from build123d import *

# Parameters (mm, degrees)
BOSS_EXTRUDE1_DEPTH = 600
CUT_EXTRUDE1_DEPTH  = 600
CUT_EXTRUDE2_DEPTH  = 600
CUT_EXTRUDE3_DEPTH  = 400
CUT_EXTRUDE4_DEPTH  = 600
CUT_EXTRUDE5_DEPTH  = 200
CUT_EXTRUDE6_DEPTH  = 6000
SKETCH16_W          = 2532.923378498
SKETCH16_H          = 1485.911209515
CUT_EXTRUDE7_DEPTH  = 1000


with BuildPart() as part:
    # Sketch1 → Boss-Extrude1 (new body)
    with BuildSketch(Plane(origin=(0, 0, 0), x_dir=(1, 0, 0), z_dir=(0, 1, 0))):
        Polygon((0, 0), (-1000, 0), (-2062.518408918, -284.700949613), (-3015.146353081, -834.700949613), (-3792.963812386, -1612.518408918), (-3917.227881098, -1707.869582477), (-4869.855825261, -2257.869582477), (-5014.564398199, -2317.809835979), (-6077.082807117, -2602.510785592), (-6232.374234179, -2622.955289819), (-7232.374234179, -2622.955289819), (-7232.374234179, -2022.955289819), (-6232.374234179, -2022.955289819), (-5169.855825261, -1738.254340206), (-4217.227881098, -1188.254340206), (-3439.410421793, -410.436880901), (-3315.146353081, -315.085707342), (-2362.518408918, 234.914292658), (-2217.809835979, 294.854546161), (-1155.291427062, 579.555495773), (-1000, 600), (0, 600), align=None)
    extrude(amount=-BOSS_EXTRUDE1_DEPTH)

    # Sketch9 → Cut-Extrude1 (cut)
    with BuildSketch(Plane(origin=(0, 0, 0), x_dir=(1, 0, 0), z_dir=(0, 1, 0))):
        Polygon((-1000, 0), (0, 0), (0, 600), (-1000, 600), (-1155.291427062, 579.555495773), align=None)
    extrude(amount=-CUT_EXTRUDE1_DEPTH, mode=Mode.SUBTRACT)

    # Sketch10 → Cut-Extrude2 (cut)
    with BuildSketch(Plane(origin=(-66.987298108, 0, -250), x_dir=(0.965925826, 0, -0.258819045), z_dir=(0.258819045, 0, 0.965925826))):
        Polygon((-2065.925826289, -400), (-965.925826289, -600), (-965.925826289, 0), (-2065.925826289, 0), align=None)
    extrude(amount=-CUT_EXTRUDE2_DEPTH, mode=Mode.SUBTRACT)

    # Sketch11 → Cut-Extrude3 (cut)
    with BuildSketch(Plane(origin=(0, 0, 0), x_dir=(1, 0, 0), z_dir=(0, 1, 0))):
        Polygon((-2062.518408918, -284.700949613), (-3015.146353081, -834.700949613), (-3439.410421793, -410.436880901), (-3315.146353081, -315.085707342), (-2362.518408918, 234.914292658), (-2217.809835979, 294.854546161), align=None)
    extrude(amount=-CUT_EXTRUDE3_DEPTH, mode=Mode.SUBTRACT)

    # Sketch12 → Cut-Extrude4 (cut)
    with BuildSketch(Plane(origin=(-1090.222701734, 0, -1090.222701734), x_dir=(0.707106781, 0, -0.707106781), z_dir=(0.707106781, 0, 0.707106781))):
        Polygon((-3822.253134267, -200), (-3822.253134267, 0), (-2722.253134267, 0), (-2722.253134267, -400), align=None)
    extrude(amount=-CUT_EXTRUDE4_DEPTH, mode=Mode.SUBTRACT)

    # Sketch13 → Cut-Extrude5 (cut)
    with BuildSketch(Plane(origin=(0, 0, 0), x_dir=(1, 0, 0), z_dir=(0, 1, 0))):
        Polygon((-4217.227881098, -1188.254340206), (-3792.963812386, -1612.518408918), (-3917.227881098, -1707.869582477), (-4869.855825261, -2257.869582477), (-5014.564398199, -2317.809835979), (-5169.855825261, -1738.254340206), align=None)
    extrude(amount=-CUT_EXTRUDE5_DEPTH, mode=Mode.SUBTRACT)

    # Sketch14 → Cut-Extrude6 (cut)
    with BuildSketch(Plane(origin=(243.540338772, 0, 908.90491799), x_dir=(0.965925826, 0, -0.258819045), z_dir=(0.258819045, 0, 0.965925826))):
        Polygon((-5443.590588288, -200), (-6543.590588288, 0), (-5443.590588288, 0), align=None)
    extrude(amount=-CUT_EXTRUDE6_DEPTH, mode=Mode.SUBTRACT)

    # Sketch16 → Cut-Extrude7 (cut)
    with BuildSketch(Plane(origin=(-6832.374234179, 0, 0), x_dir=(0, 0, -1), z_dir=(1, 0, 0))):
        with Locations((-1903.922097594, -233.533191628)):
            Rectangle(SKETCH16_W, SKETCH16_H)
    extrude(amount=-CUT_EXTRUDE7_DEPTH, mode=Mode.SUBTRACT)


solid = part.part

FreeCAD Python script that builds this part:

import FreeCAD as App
import Part
import Sketcher

V = App.Vector
Q = App.Units.Quantity

doc = App.newDocument("Part")
body = doc.addObject("PartDesign::Body", "Body")

# Sketch on XZ plane
sketch1 = body.newObject("Sketcher::SketchObject", "Sketch")
sketch1.AttachmentSupport = (doc.getObject("XZ_Plane"), [""])
sketch1.MapMode = "FlatFace"
sketch1.addGeometry([
    Part.LineSegment(V(-1000, 0, 0), V(0, 0, 0)),  # 0
    Part.LineSegment(V(0, 0, 0), V(0, -600, 0)),  # 1
    Part.LineSegment(V(0, -600, 0), V(-1000, -600, 0)),  # 2
    Part.LineSegment(V(-1000, -600, 0), V(-1155, -580, 0)),  # 3
    Part.LineSegment(V(-1155, -580, 0), V(-2218, -295, 0)),  # 4
    Part.LineSegment(V(-2218, -295, 0), V(-2363, -235, 0)),  # 5
    Part.LineSegment(V(-2363, -235, 0), V(-3315, 315, 0)),  # 6
    Part.LineSegment(V(-3315, 315, 0), V(-3439, 410, 0)),  # 7
    Part.LineSegment(V(-3439, 410, 0), V(-4217, 1188, 0)),  # 8
    Part.LineSegment(V(-4217, 1188, 0), V(-5170, 1738, 0)),  # 9
    Part.LineSegment(V(-5170, 1738, 0), V(-6232, 2023, 0)),  # 10
    Part.LineSegment(V(-6232, 2023, 0), V(-7232, 2023, 0)),  # 11
    Part.LineSegment(V(-7232, 2023, 0), V(-7232, 2623, 0)),  # 12
    Part.LineSegment(V(-7232, 2623, 0), V(-6232, 2623, 0)),  # 13
    Part.LineSegment(V(-6232, 2623, 0), V(-6077, 2603, 0)),  # 14
    Part.LineSegment(V(-6077, 2603, 0), V(-5015, 2318, 0)),  # 15
    Part.LineSegment(V(-5015, 2318, 0), V(-4870, 2258, 0)),  # 16
    Part.LineSegment(V(-4870, 2258, 0), V(-3917, 1708, 0)),  # 17
    Part.LineSegment(V(-3917, 1708, 0), V(-3793, 1613, 0)),  # 18
    Part.LineSegment(V(-3793, 1613, 0), V(-3015, 835, 0)),  # 19
    Part.LineSegment(V(-3015, 835, 0), V(-2063, 285, 0)),  # 20
    Part.LineSegment(V(-2063, 285, 0), V(-1000, 0, 0)),  # 21
], False)
sketch1.addConstraint([
    Sketcher.Constraint("Coincident", 0, 2, 1, 1),
    Sketcher.Constraint("Coincident", 1, 2, 2, 1),
    Sketcher.Constraint("Coincident", 2, 2, 3, 1),
    Sketcher.Constraint("Coincident", 3, 2, 4, 1),
    Sketcher.Constraint("Coincident", 4, 2, 5, 1),
    Sketcher.Constraint("Coincident", 5, 2, 6, 1),
    Sketcher.Constraint("Coincident", 6, 2, 7, 1),
    Sketcher.Constraint("Coincident", 7, 2, 8, 1),
    Sketcher.Constraint("Coincident", 8, 2, 9, 1),
    Sketcher.Constraint("Coincident", 9, 2, 10, 1),
    Sketcher.Constraint("Coincident", 10, 2, 11, 1),
    Sketcher.Constraint("Coincident", 11, 2, 12, 1),
    Sketcher.Constraint("Coincident", 12, 2, 13, 1),
    Sketcher.Constraint("Coincident", 13, 2, 14, 1),
    Sketcher.Constraint("Coincident", 14, 2, 15, 1),
    Sketcher.Constraint("Coincident", 15, 2, 16, 1),
    Sketcher.Constraint("Coincident", 16, 2, 17, 1),
    Sketcher.Constraint("Coincident", 17, 2, 18, 1),
    Sketcher.Constraint("Coincident", 18, 2, 19, 1),
    Sketcher.Constraint("Coincident", 19, 2, 20, 1),
    Sketcher.Constraint("Coincident", 20, 2, 21, 1),
    Sketcher.Constraint("Coincident", 21, 2, 0, 1),
    Sketcher.Constraint("Horizontal", 0),
    Sketcher.Constraint("Vertical", 1),
    Sketcher.Constraint("Horizontal", 2),
    Sketcher.Constraint("Horizontal", 11),
    Sketcher.Constraint("Vertical", 12),
    Sketcher.Constraint("Horizontal", 13),
    Sketcher.Constraint("Coincident", 0, 2, -1, 1),
    Sketcher.Constraint("Parallel", 6, 9),
    Sketcher.Constraint("Parallel", 4, 10),
    Sketcher.Constraint("Parallel", 3, 14),
    Sketcher.Constraint("Parallel", 10, 15),
    Sketcher.Constraint("Parallel", 5, 16),
    Sketcher.Constraint("Parallel", 9, 17),
    Sketcher.Constraint("Parallel", 7, 18),
    Sketcher.Constraint("Parallel", 8, 19),
    Sketcher.Constraint("Parallel", 17, 20),
    Sketcher.Constraint("Parallel", 15, 21),
    Sketcher.Constraint("Vertical", 10, 2, 13, 2),
    Sketcher.Constraint("Vertical", 2, 2, 21, 2),
    Sketcher.Constraint("Equal", 2, 11),
    Sketcher.Constraint("Equal", 1, 12),
    Sketcher.Constraint("Equal", 3, 5),
    Sketcher.Constraint("Equal", 4, 6),
    Sketcher.Constraint("Equal", 5, 7),
    Sketcher.Constraint("Equal", 6, 8),
    Sketcher.Constraint("Equal", 8, 9),
    Sketcher.Constraint("Equal", 9, 10),
    Sketcher.Constraint("Equal", 7, 14),
    Sketcher.Constraint("Equal", 10, 15),
    Sketcher.Constraint("Equal", 14, 16),
    Sketcher.Constraint("Equal", 15, 17),
    Sketcher.Constraint("Equal", 16, 18),
    Sketcher.Constraint("Equal", 17, 19),
    Sketcher.Constraint("DistanceX", 0, 1, 0, 2, 1000.0),
    Sketcher.Constraint("DistanceY", 1, 2, 1, 1, 600.0),
    Sketcher.Constraint("Angle", 4, Q("165 deg")),
    Sketcher.Constraint("Angle", 6, Q("150 deg")),
    Sketcher.Constraint("Angle", 8, Q("135 deg")),
    Sketcher.Constraint("Distance", 4, 1100.0),
    Sketcher.Constraint("Angle", 3, Q("172.5 deg")),
    Sketcher.Constraint("Angle", 5, Q("157.5 deg")),
    Sketcher.Constraint("Angle", 7, Q("142.5 deg")),
    Sketcher.Constraint("DistanceX", 9, 2, 16, 2, 300.0),
])
pad1 = body.newObject("PartDesign::Pad", "Pad")
pad1.Profile = sketch1
pad1.Length = 600

# Sketch on XZ plane
sketch2 = body.newObject("Sketcher::SketchObject", "Sketch001")
sketch2.AttachmentSupport = (doc.getObject("XZ_Plane"), [""])
sketch2.MapMode = "FlatFace"
sketch2.addGeometry([
    Part.LineSegment(V(-1000, 0, 0), V(0, 0, 0)),  # 0
    Part.LineSegment(V(0, 0, 0), V(0, -600, 0)),  # 1
    Part.LineSegment(V(0, -600, 0), V(-1000, -600, 0)),  # 2
    Part.LineSegment(V(-1000, -600, 0), V(-1155, -580, 0)),  # 3
    Part.LineSegment(V(-1155, -580, 0), V(-1000, 0, 0)),  # 4
], False)
sketch2.addConstraint([
    Sketcher.Constraint("Coincident", 0, 2, 1, 1),
    Sketcher.Constraint("Coincident", 1, 2, 2, 1),
    Sketcher.Constraint("Coincident", 2, 2, 3, 1),
    Sketcher.Constraint("Coincident", 3, 2, 4, 1),
    Sketcher.Constraint("Coincident", 4, 2, 0, 1),
    Sketcher.Constraint("Horizontal", 0),
    Sketcher.Constraint("Vertical", 1),
    Sketcher.Constraint("Horizontal", 2),
    Sketcher.Constraint("Coincident", 0, 2, -1, 1),
    Sketcher.Constraint("Vertical", 2, 2, 4, 2),
    Sketcher.Constraint("DistanceX", 0, 1, 0, 2, 1000.0),
    Sketcher.Constraint("DistanceY", 1, 2, 1, 1, 600.0),
    Sketcher.Constraint("Angle", 4, Q("75 deg")),
    Sketcher.Constraint("Distance", 4, 600.0),
])
pocket1 = body.newObject("PartDesign::Pocket", "Pocket")
pocket1.Profile = sketch2
pocket1.Length = 600
pocket1.Reversed = True

# Sketch on an angled plane
sketch3 = body.newObject("Sketcher::SketchObject", "Sketch002")
sketch3.Placement = App.Placement(V(-66.987298, 0, -250), App.Rotation(V(0.965925826, 0, -0.258819045), V(0, 0.999999999, 0), V(0.258819045, 0, 0.965925826), "ZXY"))
sketch3.addGeometry([
    Part.LineSegment(V(-2066, -400, 0), V(-966, -600, 0)),
    Part.LineSegment(V(-966, -600, 0), V(-966, 0, 0)),
    Part.LineSegment(V(-966, 0, 0), V(-2066, 0, 0)),
    Part.LineSegment(V(-2066, 0, 0), V(-2066, -400, 0)),
], False)
sketch3.addConstraint([
    Sketcher.Constraint("Coincident", 0, 2, 1, 1),
    Sketcher.Constraint("Coincident", 1, 2, 2, 1),
    Sketcher.Constraint("Coincident", 2, 2, 3, 1),
    Sketcher.Constraint("Coincident", 3, 2, 0, 1),
    Sketcher.Constraint("Vertical", 1),
    Sketcher.Constraint("Horizontal", 2),
    Sketcher.Constraint("Vertical", 3),
    Sketcher.Constraint("PointOnObject", 1, 2, -1),
    Sketcher.Constraint("DistanceX", 2, 2, 2, 1, 1099.999999),
    Sketcher.Constraint("DistanceY", 1, 1, 1, 2, 599.999999),
    Sketcher.Constraint("DistanceY", 3, 2, 3, 1, 400.0),
    Sketcher.Constraint("DistanceX", 0, 2, -1, 1, 965.925826),
])
pocket2 = body.newObject("PartDesign::Pocket", "Pocket001")
pocket2.Profile = sketch3
pocket2.Length = 600

# Sketch on XZ plane
sketch4 = body.newObject("Sketcher::SketchObject", "Sketch003")
sketch4.AttachmentSupport = (doc.getObject("XZ_Plane"), [""])
sketch4.MapMode = "FlatFace"
sketch4.addGeometry([
    Part.LineSegment(V(-3015, 835, 0), V(-2063, 285, 0)),  # 0
    Part.LineSegment(V(-2063, 285, 0), V(-2218, -295, 0)),  # 1
    Part.LineSegment(V(-2218, -295, 0), V(-2363, -235, 0)),  # 2
    Part.LineSegment(V(-2363, -235, 0), V(-3315, 315, 0)),  # 3
    Part.LineSegment(V(-3315, 315, 0), V(-3439, 410, 0)),  # 4
    Part.LineSegment(V(-3439, 410, 0), V(-3015, 835, 0)),  # 5
], False)
sketch4.addConstraint([
    Sketcher.Constraint("Coincident", 0, 2, 1, 1),
    Sketcher.Constraint("Coincident", 1, 2, 2, 1),
    Sketcher.Constraint("Coincident", 2, 2, 3, 1),
    Sketcher.Constraint("Coincident", 3, 2, 4, 1),
    Sketcher.Constraint("Coincident", 4, 2, 5, 1),
    Sketcher.Constraint("Coincident", 5, 2, 0, 1),
    Sketcher.Constraint("Parallel", 0, 3),
    Sketcher.Constraint("Equal", 0, 3),
    Sketcher.Constraint("Equal", 2, 4),
    Sketcher.Constraint("Equal", 1, 5),
    Sketcher.Constraint("Angle", 0, Q("-30 deg")),
    Sketcher.Constraint("Angle", 1, Q("-105 deg")),
    Sketcher.Constraint("Angle", 5, Q("45 deg")),
    Sketcher.Constraint("Distance", 0, 1100.0),
    Sketcher.Constraint("Distance", 1, 600.0),
    Sketcher.Constraint("Angle", 2, Q("157.5 deg")),
    Sketcher.Constraint("DistanceX", 0, 2, -1, 1, 2062.518409),
    Sketcher.Constraint("DistanceY", -1, 1, 0, 2, 284.70095),
])
pocket3 = body.newObject("PartDesign::Pocket", "Pocket002")
pocket3.Profile = sketch4
pocket3.Length = 400
pocket3.Reversed = True

# Sketch on an angled plane
sketch5 = body.newObject("Sketcher::SketchObject", "Sketch004")
sketch5.Placement = App.Placement(V(-1090.222702, 0, -1090.222702), App.Rotation(V(0.707106781, 0, -0.707106781), V(0, 0.999999999, 0), V(0.707106781, 0, 0.707106781), "ZXY"))
sketch5.addGeometry([
    Part.LineSegment(V(-3822, 0, 0), V(-3822, -200, 0)),
    Part.LineSegment(V(-3822, -200, 0), V(-2722, -400, 0)),
    Part.LineSegment(V(-2722, -400, 0), V(-2722, 0, 0)),
    Part.LineSegment(V(-2722, 0, 0), V(-3822, 0, 0)),
], False)
sketch5.addConstraint([
    Sketcher.Constraint("Coincident", 0, 2, 1, 1),
    Sketcher.Constraint("Coincident", 1, 2, 2, 1),
    Sketcher.Constraint("Coincident", 2, 2, 3, 1),
    Sketcher.Constraint("Coincident", 3, 2, 0, 1),
    Sketcher.Constraint("Vertical", 0),
    Sketcher.Constraint("Vertical", 2),
    Sketcher.Constraint("Horizontal", 3),
    Sketcher.Constraint("PointOnObject", 2, 2, -1),
    Sketcher.Constraint("DistanceX", 3, 2, 3, 1, 1099.999999),
    Sketcher.Constraint("DistanceY", 0, 2, 0, 1, 200.0),
    Sketcher.Constraint("DistanceY", 2, 1, 2, 2, 400.0),
    Sketcher.Constraint("DistanceX", 0, 2, -1, 1, 3822.253132),
])
pocket4 = body.newObject("PartDesign::Pocket", "Pocket003")
pocket4.Profile = sketch5
pocket4.Length = 600

# Sketch on XZ plane
sketch6 = body.newObject("Sketcher::SketchObject", "Sketch005")
sketch6.AttachmentSupport = (doc.getObject("XZ_Plane"), [""])
sketch6.MapMode = "FlatFace"
sketch6.addGeometry([
    Part.LineSegment(V(-3793, 1613, 0), V(-4217, 1188, 0)),  # 0
    Part.LineSegment(V(-4217, 1188, 0), V(-5170, 1738, 0)),  # 1
    Part.LineSegment(V(-5170, 1738, 0), V(-5015, 2318, 0)),  # 2
    Part.LineSegment(V(-5015, 2318, 0), V(-4870, 2258, 0)),  # 3
    Part.LineSegment(V(-4870, 2258, 0), V(-3917, 1708, 0)),  # 4
    Part.LineSegment(V(-3917, 1708, 0), V(-3793, 1613, 0)),  # 5
], False)
sketch6.addConstraint([
    Sketcher.Constraint("Coincident", 0, 2, 1, 1),
    Sketcher.Constraint("Coincident", 1, 2, 2, 1),
    Sketcher.Constraint("Coincident", 2, 2, 3, 1),
    Sketcher.Constraint("Coincident", 3, 2, 4, 1),
    Sketcher.Constraint("Coincident", 4, 2, 5, 1),
    Sketcher.Constraint("Coincident", 5, 2, 0, 1),
    Sketcher.Constraint("Parallel", 1, 4),
    Sketcher.Constraint("Equal", 0, 2),
    Sketcher.Constraint("Equal", 1, 4),
    Sketcher.Constraint("Equal", 3, 5),
    Sketcher.Constraint("Angle", 0, Q("-135 deg")),
    Sketcher.Constraint("Angle", 1, Q("150 deg")),
    Sketcher.Constraint("Angle", 2, Q("75 deg")),
    Sketcher.Constraint("Distance", 0, 600.0),
    Sketcher.Constraint("Distance", 1, 1100.0),
    Sketcher.Constraint("Angle", 3, Q("-22.5 deg")),
    Sketcher.Constraint("DistanceX", 2, 2, -1, 1, 5014.564398),
    Sketcher.Constraint("DistanceY", -1, 1, 0, 2, 1188.25434),
])
pocket5 = body.newObject("PartDesign::Pocket", "Pocket004")
pocket5.Profile = sketch6
pocket5.Length = 200
pocket5.Reversed = True

# Sketch on an angled plane
sketch7 = body.newObject("Sketcher::SketchObject", "Sketch006")
sketch7.Placement = App.Placement(V(243.540339, 0, 908.904918), App.Rotation(V(0.965925826, 0, -0.258819045), V(0, 0.999999999, 0), V(0.258819045, 0, 0.965925826), "ZXY"))
sketch7.addGeometry([
    Part.LineSegment(V(-6544, 0, 0), V(-5444, -200, 0)),
    Part.LineSegment(V(-5444, -200, 0), V(-5444, 0, 0)),
    Part.LineSegment(V(-5444, 0, 0), V(-6544, 0, 0)),
], False)
sketch7.addConstraint([
    Sketcher.Constraint("Coincident", 0, 2, 1, 1),
    Sketcher.Constraint("Coincident", 1, 2, 2, 1),
    Sketcher.Constraint("Coincident", 2, 2, 0, 1),
    Sketcher.Constraint("Vertical", 1),
    Sketcher.Constraint("Horizontal", 2),
    Sketcher.Constraint("PointOnObject", 1, 2, -1),
    Sketcher.Constraint("DistanceX", 2, 2, 2, 1, 1099.999999),
    Sketcher.Constraint("DistanceY", 1, 1, 1, 2, 200.0),
    Sketcher.Constraint("DistanceX", 0, 2, -1, 1, 5443.590585),
])
pocket6 = body.newObject("PartDesign::Pocket", "Pocket005")
pocket6.Profile = sketch7
pocket6.Length = 6000

# Sketch on YZ plane
sketch8 = body.newObject("Sketcher::SketchObject", "Sketch007")
sketch8.AttachmentSupport = (doc.getObject("YZ_Plane"), [""])
sketch8.MapMode = "FlatFace"
sketch8.AttachmentOffset = App.Placement(V(0, 0, -6832.374234), App.Rotation())
sketch8.addGeometry([
    Part.LineSegment(V(509, 3170, 0), V(-976, 3170, 0)),
    Part.LineSegment(V(-976, 3170, 0), V(-976, 637, 0)),
    Part.LineSegment(V(-976, 637, 0), V(509, 637, 0)),
    Part.LineSegment(V(509, 637, 0), V(509, 3170, 0)),
], False)
sketch8.addConstraint([
    Sketcher.Constraint("Coincident", 0, 2, 1, 1),
    Sketcher.Constraint("Coincident", 1, 2, 2, 1),
    Sketcher.Constraint("Coincident", 2, 2, 3, 1),
    Sketcher.Constraint("Coincident", 3, 2, 0, 1),
    Sketcher.Constraint("Horizontal", 0),
    Sketcher.Constraint("Vertical", 1),
    Sketcher.Constraint("Horizontal", 2),
    Sketcher.Constraint("Vertical", 3),
    Sketcher.Constraint("DistanceX", 0, 2, 0, 1, 1485.91121),
    Sketcher.Constraint("DistanceY", 1, 2, 1, 1, 2532.923378),
    Sketcher.Constraint("DistanceY", -1, 1, 1, 2, 637.460408),
    Sketcher.Constraint("DistanceX", 0, 2, -1, 1, 976.488796),
])
pocket7 = body.newObject("PartDesign::Pocket", "Pocket006")
pocket7.Profile = sketch8
pocket7.Length = 1000

doc.recompute()
